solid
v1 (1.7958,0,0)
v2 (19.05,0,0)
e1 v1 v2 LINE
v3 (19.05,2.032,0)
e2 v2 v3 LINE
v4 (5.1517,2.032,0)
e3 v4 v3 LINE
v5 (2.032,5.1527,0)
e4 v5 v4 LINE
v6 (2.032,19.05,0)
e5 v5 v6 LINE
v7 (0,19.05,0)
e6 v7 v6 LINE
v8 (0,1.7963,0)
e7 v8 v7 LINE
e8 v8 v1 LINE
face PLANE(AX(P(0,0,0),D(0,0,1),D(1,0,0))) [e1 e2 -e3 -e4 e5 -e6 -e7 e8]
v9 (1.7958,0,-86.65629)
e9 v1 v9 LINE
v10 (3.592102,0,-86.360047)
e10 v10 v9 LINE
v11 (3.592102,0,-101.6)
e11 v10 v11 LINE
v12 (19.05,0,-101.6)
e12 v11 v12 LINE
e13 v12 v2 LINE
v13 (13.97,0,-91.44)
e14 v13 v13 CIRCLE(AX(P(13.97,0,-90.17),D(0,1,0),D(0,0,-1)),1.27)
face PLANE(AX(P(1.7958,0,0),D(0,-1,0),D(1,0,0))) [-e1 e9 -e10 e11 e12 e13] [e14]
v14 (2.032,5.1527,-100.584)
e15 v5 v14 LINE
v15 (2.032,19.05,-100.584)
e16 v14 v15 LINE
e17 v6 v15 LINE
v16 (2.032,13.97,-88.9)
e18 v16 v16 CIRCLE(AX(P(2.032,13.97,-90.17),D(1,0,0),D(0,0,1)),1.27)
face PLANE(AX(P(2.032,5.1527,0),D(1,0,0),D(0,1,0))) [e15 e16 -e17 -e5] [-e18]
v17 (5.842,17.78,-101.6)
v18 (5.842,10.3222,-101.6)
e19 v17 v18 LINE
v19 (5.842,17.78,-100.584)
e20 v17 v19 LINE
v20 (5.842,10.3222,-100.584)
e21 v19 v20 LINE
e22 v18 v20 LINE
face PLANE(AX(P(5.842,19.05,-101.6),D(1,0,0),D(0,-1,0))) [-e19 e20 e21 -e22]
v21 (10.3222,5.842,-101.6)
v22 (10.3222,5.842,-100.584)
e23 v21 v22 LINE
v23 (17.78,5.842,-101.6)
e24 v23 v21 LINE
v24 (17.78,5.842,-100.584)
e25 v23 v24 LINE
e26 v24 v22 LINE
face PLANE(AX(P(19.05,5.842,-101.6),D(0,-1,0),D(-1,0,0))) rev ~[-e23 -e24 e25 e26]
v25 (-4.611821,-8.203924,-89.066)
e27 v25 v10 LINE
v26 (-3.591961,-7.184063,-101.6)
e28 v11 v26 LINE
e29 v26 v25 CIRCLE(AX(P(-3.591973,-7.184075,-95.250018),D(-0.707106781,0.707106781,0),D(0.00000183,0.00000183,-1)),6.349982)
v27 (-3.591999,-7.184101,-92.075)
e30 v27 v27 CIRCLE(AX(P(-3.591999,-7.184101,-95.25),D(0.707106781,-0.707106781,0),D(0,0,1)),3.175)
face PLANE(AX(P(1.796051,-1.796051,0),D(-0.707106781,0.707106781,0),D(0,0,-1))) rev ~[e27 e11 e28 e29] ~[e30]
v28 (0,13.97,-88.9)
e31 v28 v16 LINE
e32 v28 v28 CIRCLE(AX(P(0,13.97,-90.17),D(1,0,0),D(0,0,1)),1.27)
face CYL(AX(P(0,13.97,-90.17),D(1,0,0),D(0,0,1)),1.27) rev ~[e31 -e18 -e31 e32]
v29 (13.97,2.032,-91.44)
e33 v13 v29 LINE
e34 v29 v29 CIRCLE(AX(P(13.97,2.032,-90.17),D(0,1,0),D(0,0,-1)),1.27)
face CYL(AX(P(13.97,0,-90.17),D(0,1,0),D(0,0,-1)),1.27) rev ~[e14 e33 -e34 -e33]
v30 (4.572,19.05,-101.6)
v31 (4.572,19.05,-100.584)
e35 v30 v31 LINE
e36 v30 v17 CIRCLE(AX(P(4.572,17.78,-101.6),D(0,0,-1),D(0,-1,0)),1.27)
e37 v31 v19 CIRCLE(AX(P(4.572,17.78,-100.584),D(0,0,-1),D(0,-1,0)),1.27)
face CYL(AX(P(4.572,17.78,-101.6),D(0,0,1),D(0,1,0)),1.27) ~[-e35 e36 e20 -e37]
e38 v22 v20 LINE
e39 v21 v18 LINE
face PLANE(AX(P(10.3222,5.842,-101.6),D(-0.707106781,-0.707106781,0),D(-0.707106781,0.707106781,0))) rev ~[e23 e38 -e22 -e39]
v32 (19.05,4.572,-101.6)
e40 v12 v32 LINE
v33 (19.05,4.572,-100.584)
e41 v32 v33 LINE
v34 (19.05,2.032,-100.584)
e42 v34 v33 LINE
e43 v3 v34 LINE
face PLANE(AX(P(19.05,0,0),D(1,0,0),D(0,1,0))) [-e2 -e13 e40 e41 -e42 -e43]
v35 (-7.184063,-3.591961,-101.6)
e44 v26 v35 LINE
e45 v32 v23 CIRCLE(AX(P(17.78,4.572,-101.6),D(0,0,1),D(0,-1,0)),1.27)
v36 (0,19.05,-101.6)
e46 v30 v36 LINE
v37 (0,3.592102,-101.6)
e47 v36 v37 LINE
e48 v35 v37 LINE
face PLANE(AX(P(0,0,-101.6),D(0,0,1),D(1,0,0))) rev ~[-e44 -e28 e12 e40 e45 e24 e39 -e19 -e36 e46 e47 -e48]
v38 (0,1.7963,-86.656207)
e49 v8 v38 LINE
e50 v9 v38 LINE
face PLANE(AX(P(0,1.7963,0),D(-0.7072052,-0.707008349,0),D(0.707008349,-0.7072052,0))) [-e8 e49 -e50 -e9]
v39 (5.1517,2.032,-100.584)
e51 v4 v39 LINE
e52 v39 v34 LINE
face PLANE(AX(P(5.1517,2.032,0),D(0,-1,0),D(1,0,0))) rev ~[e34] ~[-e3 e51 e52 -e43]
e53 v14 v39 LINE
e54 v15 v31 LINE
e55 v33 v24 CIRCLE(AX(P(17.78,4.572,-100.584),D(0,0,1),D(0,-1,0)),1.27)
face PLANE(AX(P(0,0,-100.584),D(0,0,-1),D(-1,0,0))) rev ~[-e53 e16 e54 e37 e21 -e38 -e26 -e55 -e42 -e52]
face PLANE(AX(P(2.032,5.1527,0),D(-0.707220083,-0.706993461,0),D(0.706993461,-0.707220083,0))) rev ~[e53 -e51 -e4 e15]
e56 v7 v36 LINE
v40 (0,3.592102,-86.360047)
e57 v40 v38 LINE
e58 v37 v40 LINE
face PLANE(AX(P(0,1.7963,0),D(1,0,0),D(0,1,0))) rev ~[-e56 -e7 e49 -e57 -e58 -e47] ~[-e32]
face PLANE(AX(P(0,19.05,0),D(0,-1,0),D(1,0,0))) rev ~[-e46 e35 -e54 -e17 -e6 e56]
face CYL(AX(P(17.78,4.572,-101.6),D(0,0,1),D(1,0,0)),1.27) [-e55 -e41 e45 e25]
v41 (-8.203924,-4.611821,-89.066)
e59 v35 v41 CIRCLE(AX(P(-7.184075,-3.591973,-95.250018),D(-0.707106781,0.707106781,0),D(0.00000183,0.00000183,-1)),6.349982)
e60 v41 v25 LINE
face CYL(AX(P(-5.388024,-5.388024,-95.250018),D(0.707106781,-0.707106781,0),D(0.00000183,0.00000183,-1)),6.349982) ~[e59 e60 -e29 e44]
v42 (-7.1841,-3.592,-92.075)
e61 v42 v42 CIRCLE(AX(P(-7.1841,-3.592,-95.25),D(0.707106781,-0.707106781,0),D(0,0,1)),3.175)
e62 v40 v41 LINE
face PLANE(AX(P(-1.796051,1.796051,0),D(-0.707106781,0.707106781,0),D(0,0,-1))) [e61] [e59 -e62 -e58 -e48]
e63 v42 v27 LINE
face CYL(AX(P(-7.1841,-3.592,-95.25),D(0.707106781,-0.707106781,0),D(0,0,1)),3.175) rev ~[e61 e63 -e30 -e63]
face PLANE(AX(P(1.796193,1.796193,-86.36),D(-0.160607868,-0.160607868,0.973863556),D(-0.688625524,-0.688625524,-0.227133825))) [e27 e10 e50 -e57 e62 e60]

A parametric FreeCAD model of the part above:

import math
import FreeCAD as App
import Part
import Sketcher
from FreeCAD import Vector
Q = App.Units.Quantity


def edges_at(feature, points):
    """Names of the edges that pass closest to the given points."""
    edges = feature.Shape.Edges
    near = lambda p: min(range(len(edges)), key=lambda i: edges[i].distToShape(Part.Vertex(*p))[0])
    return sorted({f"Edge{near(p) + 1}" for p in points})

doc = App.newDocument("Part")
body = doc.addObject("PartDesign::Body", "Body")

# Sketch on XY plane
sketch1 = body.newObject("Sketcher::SketchObject", "Sketch")
sketch1.AttachmentSupport = (doc.getObject("XY_Plane"), [""])
sketch1.MapMode = "FlatFace"
sketch1.addGeometry(Part.LineSegment(Vector(0, 1.8, 0), Vector(1.8, 0, 0)), False)
sketch1.addGeometry(Part.LineSegment(Vector(1.8, 0, 0), Vector(19.1, 0, 0)), False)
sketch1.addGeometry(Part.LineSegment(Vector(19.1, 0, 0), Vector(19.1, 2, 0)), False)
sketch1.addGeometry(Part.LineSegment(Vector(19.1, 2, 0), Vector(5.2, 2, 0)), False)
sketch1.addGeometry(Part.LineSegment(Vector(5.2, 2, 0), Vector(2, 5.2, 0)), False)
sketch1.addGeometry(Part.LineSegment(Vector(2, 5.2, 0), Vector(2, 19.1, 0)), False)
sketch1.addGeometry(Part.LineSegment(Vector(2, 19.1, 0), Vector(0, 19.1, 0)), False)
sketch1.addGeometry(Part.LineSegment(Vector(0, 19.1, 0), Vector(0, 1.8, 0)), False)
sketch1.addConstraint(Sketcher.Constraint("Coincident", 0, 2, 1, 1))
sketch1.addConstraint(Sketcher.Constraint("Coincident", 1, 2, 2, 1))
sketch1.addConstraint(Sketcher.Constraint("Coincident", 2, 2, 3, 1))
sketch1.addConstraint(Sketcher.Constraint("Coincident", 3, 2, 4, 1))
sketch1.addConstraint(Sketcher.Constraint("Coincident", 4, 2, 5, 1))
sketch1.addConstraint(Sketcher.Constraint("Coincident", 5, 2, 6, 1))
sketch1.addConstraint(Sketcher.Constraint("Coincident", 6, 2, 7, 1))
sketch1.addConstraint(Sketcher.Constraint("Coincident", 7, 2, 0, 1))
sketch1.addConstraint(Sketcher.Constraint("Horizontal", 1))
sketch1.addConstraint(Sketcher.Constraint("Vertical", 2))
sketch1.addConstraint(Sketcher.Constraint("Horizontal", 3))
sketch1.addConstraint(Sketcher.Constraint("Vertical", 5))
sketch1.addConstraint(Sketcher.Constraint("Horizontal", 6))
sketch1.addConstraint(Sketcher.Constraint("Vertical", 7))
sketch1.addConstraint(Sketcher.Constraint("PointOnObject", 0, 2, -1))
sketch1.addConstraint(Sketcher.Constraint("PointOnObject", 6, 2, -2))
sketch1.addConstraint(Sketcher.Constraint("Parallel", 0, 4))
sketch1.addConstraint(Sketcher.Constraint("Equal", 6, 2))
sketch1.addConstraint(Sketcher.Constraint("Distance", 0, Q("0.1 in")))
sketch1.addConstraint(Sketcher.Constraint("DistanceX", 6, 2, 6, 1, Q("0.08 in")))
sketch1.addConstraint(Sketcher.Constraint("DistanceX", -1, 1, 1, 2, Q("0.75 in")))
sketch1.addConstraint(Sketcher.Constraint("DistanceY", -1, 1, 5, 2, Q("0.75 in")))
sketch1.addConstraint(Sketcher.Constraint("DistanceX", 1, 1, 1, 2, Q("0.6793 in")))
sketch1.addConstraint(Sketcher.Constraint("DistanceX", 3, 2, 3, 1, Q("13.8983 mm")))
pad1 = body.newObject("PartDesign::Pad", "Pad")
pad1.Profile = sketch1
pad1.Length = Q("4 in")
pad1.Reversed = True

# Sketch on XY plane
sketch2 = body.newObject("Sketcher::SketchObject", "Sketch001")
sketch2.AttachmentSupport = (doc.getObject("XY_Plane"), [""])
sketch2.MapMode = "FlatFace"
sketch2.AttachmentOffset = App.Placement(Vector(0, 0, -4 * 25.4), App.Rotation())
sketch2.addGeometry(Part.LineSegment(Vector(19.1, 5.8, 0), Vector(19.1, 0, 0)), False)
sketch2.addGeometry(Part.LineSegment(Vector(19.1, 0, 0), Vector(1.8, 0, 0)), False)
sketch2.addGeometry(Part.LineSegment(Vector(1.8, 0, 0), Vector(0, 1.8, 0)), False)
sketch2.addGeometry(Part.LineSegment(Vector(0, 1.8, 0), Vector(0, 19.1, 0)), False)
sketch2.addGeometry(Part.LineSegment(Vector(0, 19.1, 0), Vector(5.8, 19.1, 0)), False)
sketch2.addGeometry(Part.LineSegment(Vector(5.8, 19.1, 0), Vector(5.8, 10.3, 0)), False)
sketch2.addGeometry(Part.LineSegment(Vector(5.8, 10.3, 0), Vector(10.3, 5.8, 0)), False)
sketch2.addGeometry(Part.LineSegment(Vector(10.3, 5.8, 0), Vector(19.1, 5.8, 0)), False)
sketch2.addConstraint(Sketcher.Constraint("Coincident", 0, 2, 1, 1))
sketch2.addConstraint(Sketcher.Constraint("Coincident", 1, 2, 2, 1))
sketch2.addConstraint(Sketcher.Constraint("Coincident", 2, 2, 3, 1))
sketch2.addConstraint(Sketcher.Constraint("Coincident", 3, 2, 4, 1))
sketch2.addConstraint(Sketcher.Constraint("Coincident", 4, 2, 5, 1))
sketch2.addConstraint(Sketcher.Constraint("Coincident", 5, 2, 6, 1))
sketch2.addConstraint(Sketcher.Constraint("Coincident", 6, 2, 7, 1))
sketch2.addConstraint(Sketcher.Constraint("Coincident", 7, 2, 0, 1))
sketch2.addConstraint(Sketcher.Constraint("Vertical", 0))
sketch2.addConstraint(Sketcher.Constraint("Horizontal", 1))
sketch2.addConstraint(Sketcher.Constraint("Vertical", 3))
sketch2.addConstraint(Sketcher.Constraint("Horizontal", 4))
sketch2.addConstraint(Sketcher.Constraint("Vertical", 5))
sketch2.addConstraint(Sketcher.Constraint("Horizontal", 7))
sketch2.addConstraint(Sketcher.Constraint("PointOnObject", 0, 2, -1))
sketch2.addConstraint(Sketcher.Constraint("PointOnObject", 2, 2, -2))
sketch2.addConstraint(Sketcher.Constraint("Parallel", 2, 6))
sketch2.addConstraint(Sketcher.Constraint("Equal", 4, 0))
sketch2.addConstraint(Sketcher.Constraint("Equal", 1, 3))
sketch2.addConstraint(Sketcher.Constraint("Equal", 7, 5))
sketch2.addConstraint(Sketcher.Constraint("DistanceX", 4, 1, 4, 2, Q("0.23 in")))
sketch2.addConstraint(Sketcher.Constraint("DistanceX", -1, 1, 0, 2, Q("0.75 in")))
sketch2.addConstraint(Sketcher.Constraint("DistanceX", 1, 2, 1, 1, Q("0.6793 in")))
sketch2.addConstraint(Sketcher.Constraint("DistanceX", 7, 1, 7, 2, Q("8.7278 mm")))
pad2 = body.newObject("PartDesign::Pad", "Pad001")
pad2.Profile = sketch2
pad2.Length = Q("0.04 in")

# Sketch on an angled plane
sketch3 = body.newObject("Sketcher::SketchObject", "Sketch002")
sketch3.Placement = App.Placement(Vector(0, 0, 0), App.Rotation(Vector(0, 0, -1), Vector(-0.707106781, -0.707106781, 0), Vector(-0.707106781, 0.707106781, 0), "ZXY"))
sketch3.addGeometry(Part.LineSegment(Vector(86, -3, 0), Vector(102, -3, 0)), False)
sketch3.addGeometry(Part.LineSegment(Vector(102, -3, 0), Vector(102, 8, 0)), False)
sketch3.addGeometry(Part.ArcOfCircle(Part.Circle(Vector(95, 8, 0), Vector(0, 0, 1), 6), math.radians(0), math.radians(167)), False)
sketch3.addGeometry(Part.LineSegment(Vector(89, 9, 0), Vector(86, -3, 0)), False)
sketch3.addConstraint(Sketcher.Constraint("Coincident", 0, 2, 1, 1))
sketch3.addConstraint(Sketcher.Constraint("Tangent", 1, 2, 2, 1))
sketch3.addConstraint(Sketcher.Constraint("Tangent", 2, 2, 3, 1))
sketch3.addConstraint(Sketcher.Constraint("Coincident", 3, 2, 0, 1))
sketch3.addConstraint(Sketcher.Constraint("Horizontal", 0))
sketch3.addConstraint(Sketcher.Constraint("Vertical", 1))
sketch3.addConstraint(Sketcher.Constraint("Radius", 2, Q("0.25 in")))
sketch3.addConstraint(Sketcher.Constraint("DistanceX", 0, 1, 0, 2, Q("0.6 in")))
sketch3.addConstraint(Sketcher.Constraint("DistanceY", 1, 1, 1, 2, Q("0.4 in")))
sketch3.addConstraint(Sketcher.Constraint("DistanceX", -1, 1, 0, 2, Q("4 in")))
sketch3.addConstraint(Sketcher.Constraint("DistanceY", -1, 1, 2, 3, Q("0.3 in")))
pad3 = body.newObject("PartDesign::Pad", "Pad002")
pad3.Profile = sketch3
pad3.Length = Q("0.2 in")
pad3.Midplane = True

# Sketch on an angled plane
sketch4 = body.newObject("Sketcher::SketchObject", "Sketch003")
sketch4.Placement = App.Placement(Vector(-1.79605, 1.79605, 0), App.Rotation(Vector(-0.707106781, -0.707106781, 0), Vector(0, 0, 0.999999999), Vector(-0.707106781, 0.707106781, 0), "ZXY"))
sketch4.addGeometry(Part.Circle(Vector(7.6, -95.2, 0), Vector(0, 0, 1), 3.2), False)
sketch4.addConstraint(Sketcher.Constraint("Diameter", 0, Q("0.25 in")))
sketch4.addConstraint(Sketcher.Constraint("DistanceX", -1, 1, 0, 3, Q("0.3 in")))
sketch4.addConstraint(Sketcher.Constraint("DistanceY", 0, 3, -1, 1, Q("3.75 in")))
doc.recompute()
hole = body.newObject("PartDesign::Hole", "Hole")
hole.Profile = sketch4
hole.ThreadType = "None"
hole.Diameter = Q("0.25 in")
hole.DepthType = "ThroughAll"
doc.recompute()

fillet = body.newObject("PartDesign::Fillet", "Fillet")
fillet.Base = (hole, edges_at(hole, [(5.842, 19.05, -101.092), (19.05, 5.842, -101.092)]))
fillet.Radius = Q("0.05 in")

# Sketch on YZ plane
sketch5 = body.newObject("Sketcher::SketchObject", "Sketch004")
sketch5.AttachmentSupport = (doc.getObject("YZ_Plane"), [""])
sketch5.MapMode = "FlatFace"
sketch5.addGeometry(Part.Circle(Vector(14, -90.2, 0), Vector(0, 0, 1), 1.3), False)
sketch5.addConstraint(Sketcher.Constraint("Diameter", 0, Q("0.1 in")))
sketch5.addConstraint(Sketcher.Constraint("DistanceX", -1, 1, 0, 3, Q("0.55 in")))
sketch5.addConstraint(Sketcher.Constraint("DistanceY", 0, 3, -1, 1, Q("3.55 in")))
doc.recompute()
hole2 = body.newObject("PartDesign::Hole", "Hole001")
hole2.Profile = sketch5
hole2.ThreadType = "None"
hole2.Diameter = Q("0.1 in")
hole2.DepthType = "ThroughAll"
hole2.Reversed = True

# Sketch on XZ plane
sketch6 = body.newObject("Sketcher::SketchObject", "Sketch005")
sketch6.AttachmentSupport = (doc.getObject("XZ_Plane"), [""])
sketch6.MapMode = "FlatFace"
sketch6.addGeometry(Part.Circle(Vector(14, -90.2, 0), Vector(0, 0, 1), 1.3), False)
sketch6.addConstraint(Sketcher.Constraint("Diameter", 0, Q("0.1 in")))
sketch6.addConstraint(Sketcher.Constraint("DistanceX", -1, 1, 0, 3, Q("0.55 in")))
sketch6.addConstraint(Sketcher.Constraint("DistanceY", 0, 3, -1, 1, Q("3.55 in")))
doc.recompute()
hole3 = body.newObject("PartDesign::Hole", "Hole002")
hole3.Profile = sketch6
hole3.ThreadType = "None"
hole3.Diameter = Q("0.1 in")
hole3.DepthType = "ThroughAll"

doc.recompute()
